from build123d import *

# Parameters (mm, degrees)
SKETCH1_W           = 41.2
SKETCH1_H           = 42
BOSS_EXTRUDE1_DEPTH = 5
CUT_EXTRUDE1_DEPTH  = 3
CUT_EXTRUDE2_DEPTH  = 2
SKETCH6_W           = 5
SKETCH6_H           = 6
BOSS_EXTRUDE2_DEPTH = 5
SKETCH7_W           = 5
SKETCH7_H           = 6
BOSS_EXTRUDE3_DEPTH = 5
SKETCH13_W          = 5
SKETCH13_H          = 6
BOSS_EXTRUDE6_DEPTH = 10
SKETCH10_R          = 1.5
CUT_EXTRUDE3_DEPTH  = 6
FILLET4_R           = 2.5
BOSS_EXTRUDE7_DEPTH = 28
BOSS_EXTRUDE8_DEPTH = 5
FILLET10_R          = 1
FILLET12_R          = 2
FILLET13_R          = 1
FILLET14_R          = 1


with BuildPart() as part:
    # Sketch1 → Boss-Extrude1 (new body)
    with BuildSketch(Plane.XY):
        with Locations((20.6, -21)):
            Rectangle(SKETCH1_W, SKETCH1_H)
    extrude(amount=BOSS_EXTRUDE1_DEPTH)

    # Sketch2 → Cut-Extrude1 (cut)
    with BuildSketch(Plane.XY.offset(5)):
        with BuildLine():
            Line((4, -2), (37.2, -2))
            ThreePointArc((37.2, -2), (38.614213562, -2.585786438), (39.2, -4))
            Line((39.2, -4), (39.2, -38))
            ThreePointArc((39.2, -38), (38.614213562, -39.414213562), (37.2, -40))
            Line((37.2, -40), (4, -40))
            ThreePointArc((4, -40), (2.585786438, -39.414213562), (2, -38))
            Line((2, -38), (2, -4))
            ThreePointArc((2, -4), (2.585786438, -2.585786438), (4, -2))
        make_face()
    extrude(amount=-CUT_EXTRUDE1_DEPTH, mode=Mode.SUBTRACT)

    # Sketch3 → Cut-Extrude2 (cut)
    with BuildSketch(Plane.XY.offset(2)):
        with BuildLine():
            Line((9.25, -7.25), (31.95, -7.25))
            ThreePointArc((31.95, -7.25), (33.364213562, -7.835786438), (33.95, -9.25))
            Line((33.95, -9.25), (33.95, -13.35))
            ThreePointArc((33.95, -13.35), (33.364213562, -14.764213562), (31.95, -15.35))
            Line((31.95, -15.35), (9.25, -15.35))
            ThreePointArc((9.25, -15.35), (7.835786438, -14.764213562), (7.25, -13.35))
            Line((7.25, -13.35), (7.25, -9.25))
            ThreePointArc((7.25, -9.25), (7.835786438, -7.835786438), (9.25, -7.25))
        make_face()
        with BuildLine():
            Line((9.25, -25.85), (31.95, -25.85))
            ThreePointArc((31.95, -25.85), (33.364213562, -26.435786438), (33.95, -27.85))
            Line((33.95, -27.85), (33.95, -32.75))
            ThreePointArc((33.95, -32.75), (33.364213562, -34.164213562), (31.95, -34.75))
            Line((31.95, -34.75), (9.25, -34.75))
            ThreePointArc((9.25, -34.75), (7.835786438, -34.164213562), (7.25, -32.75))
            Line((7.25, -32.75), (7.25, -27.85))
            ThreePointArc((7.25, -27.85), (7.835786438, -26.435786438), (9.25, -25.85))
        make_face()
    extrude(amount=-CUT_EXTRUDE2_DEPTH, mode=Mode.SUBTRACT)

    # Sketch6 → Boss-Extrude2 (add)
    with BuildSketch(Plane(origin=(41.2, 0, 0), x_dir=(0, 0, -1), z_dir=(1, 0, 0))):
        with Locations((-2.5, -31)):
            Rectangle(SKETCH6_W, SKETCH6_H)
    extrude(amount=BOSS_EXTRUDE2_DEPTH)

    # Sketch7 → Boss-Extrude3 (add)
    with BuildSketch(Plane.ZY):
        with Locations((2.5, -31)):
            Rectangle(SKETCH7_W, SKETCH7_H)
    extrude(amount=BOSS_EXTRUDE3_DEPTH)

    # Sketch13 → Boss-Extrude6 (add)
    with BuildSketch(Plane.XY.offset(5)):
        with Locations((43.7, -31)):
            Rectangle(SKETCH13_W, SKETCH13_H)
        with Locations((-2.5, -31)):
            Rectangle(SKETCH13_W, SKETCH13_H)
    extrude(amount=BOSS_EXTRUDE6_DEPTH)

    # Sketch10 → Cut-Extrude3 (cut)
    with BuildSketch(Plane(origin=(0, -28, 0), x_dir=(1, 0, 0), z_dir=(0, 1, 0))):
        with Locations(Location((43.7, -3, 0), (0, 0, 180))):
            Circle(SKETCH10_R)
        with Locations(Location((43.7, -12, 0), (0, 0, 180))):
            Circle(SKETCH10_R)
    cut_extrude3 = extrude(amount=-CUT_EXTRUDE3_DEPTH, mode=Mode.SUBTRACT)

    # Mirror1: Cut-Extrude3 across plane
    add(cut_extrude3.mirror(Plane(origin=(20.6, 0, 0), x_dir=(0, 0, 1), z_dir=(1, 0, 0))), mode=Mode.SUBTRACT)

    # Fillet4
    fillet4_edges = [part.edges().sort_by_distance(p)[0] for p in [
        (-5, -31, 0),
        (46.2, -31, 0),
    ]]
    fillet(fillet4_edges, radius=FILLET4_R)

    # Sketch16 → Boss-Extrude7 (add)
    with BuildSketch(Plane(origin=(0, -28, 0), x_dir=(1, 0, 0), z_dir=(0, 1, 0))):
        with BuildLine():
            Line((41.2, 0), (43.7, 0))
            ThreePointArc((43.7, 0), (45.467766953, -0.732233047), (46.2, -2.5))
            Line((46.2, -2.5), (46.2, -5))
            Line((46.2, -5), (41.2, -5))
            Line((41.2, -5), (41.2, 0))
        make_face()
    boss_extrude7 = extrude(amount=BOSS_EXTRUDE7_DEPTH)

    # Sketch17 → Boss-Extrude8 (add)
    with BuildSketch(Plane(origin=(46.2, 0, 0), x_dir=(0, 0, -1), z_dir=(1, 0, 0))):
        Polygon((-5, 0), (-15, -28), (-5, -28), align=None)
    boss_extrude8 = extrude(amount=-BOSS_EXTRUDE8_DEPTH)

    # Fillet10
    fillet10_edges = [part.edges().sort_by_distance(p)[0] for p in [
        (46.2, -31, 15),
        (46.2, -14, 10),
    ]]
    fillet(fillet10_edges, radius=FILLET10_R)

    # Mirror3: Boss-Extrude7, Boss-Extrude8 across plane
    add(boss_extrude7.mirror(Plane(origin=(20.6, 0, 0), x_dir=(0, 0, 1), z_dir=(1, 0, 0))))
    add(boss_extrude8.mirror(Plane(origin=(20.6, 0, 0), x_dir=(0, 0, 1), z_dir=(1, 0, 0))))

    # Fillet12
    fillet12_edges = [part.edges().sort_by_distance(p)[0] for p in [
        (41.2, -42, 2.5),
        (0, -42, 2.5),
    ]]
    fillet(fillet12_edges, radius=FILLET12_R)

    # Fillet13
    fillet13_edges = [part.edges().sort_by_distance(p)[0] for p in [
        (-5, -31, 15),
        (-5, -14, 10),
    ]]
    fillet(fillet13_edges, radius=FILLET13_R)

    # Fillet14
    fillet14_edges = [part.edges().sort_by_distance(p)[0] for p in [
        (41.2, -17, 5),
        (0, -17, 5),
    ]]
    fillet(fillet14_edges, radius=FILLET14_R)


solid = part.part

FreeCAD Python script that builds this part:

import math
import FreeCAD as App
import Part
import Sketcher


def edges_at(feature, points):
    """Names of the edges that pass closest to the given points."""
    edges = feature.Shape.Edges
    near = lambda p: min(range(len(edges)), key=lambda i: edges[i].distToShape(Part.Vertex(*p))[0])
    return sorted({f"Edge{near(p) + 1}" for p in points})


def add_polygon(sketch, points):
    """Adds a closed chain of lines whose ends are joined by coincident constraints."""
    first, n = sketch.GeometryCount, len(points)
    for a, b in zip(points, points[1:] + points[:1]):
        sketch.addGeometry(Part.LineSegment(App.Vector(*a, 0), App.Vector(*b, 0)), False)
    for i in range(n):
        sketch.addConstraint(Sketcher.Constraint("Coincident", first + i, 2, first + (i + 1) % n, 1))

doc = App.newDocument("Part")
params = doc.addObject("Spreadsheet::Sheet", "Params")
for row, (alias, value) in enumerate([
    ("sketch1_height", "42 mm"),
    ("sketch1_width", "41.2 mm"),
    ("pad1_length", "5 mm"),
    ("sketch2_radius", "2 mm"),
    ("sketch2_height", "34 mm"),
    ("sketch2_width", "33.2 mm"),
    ("pocket1_length", "3 mm"),
    ("sketch3_radius", "2 mm"),
    ("sketch3_width", "22.7 mm"),
    ("sketch3_height", "4.1 mm"),
    ("sketch3_height2", "4.9 mm"),
    ("pocket2_length", "2 mm"),
    ("sketch4_width", "6 mm"),
    ("sketch4_height", "5 mm"),
    ("pad2_length", "5 mm"),
    ("sketch5_width", "6 mm"),
    ("sketch5_height", "5 mm"),
    ("pad3_length", "5 mm"),
    ("sketch6_width", "5 mm"),
    ("sketch6_height", "6 mm"),
    ("pad4_length", "10 mm"),
    ("sketch7_diameter", "3 mm"),
    ("pocket3_length", "6 mm"),
    ("fillet_radius", "2.5 mm"),
    ("sketch8_radius", "2.5 mm"),
    ("sketch8_width", "5 mm"),
    ("pad5_length", "28 mm"),
    ("sketch9_width", "28 mm"),
    ("sketch9_height", "10 mm"),
    ("pad6_length", "5 mm"),
    ("fillet2_radius", "1 mm"),
    ("fillet3_radius", "2 mm"),
    ("fillet4_radius", "1 mm"),
    ("fillet5_radius", "1 mm"),
], start=1):
    params.set(f"A{row}", alias)
    params.set(f"B{row}", "=" + value)
    params.setAlias(f"B{row}", alias)

body = doc.addObject("PartDesign::Body", "Body")

# Sketch on XY plane
sketch1 = body.newObject("Sketcher::SketchObject", "Sketch")
sketch1.AttachmentSupport = (doc.getObject("XY_Plane"), [""])
sketch1.MapMode = "FlatFace"
add_polygon(sketch1, [(0, 0), (0, -42), (41, -42), (41, 0)])  # lines 0-3
sketch1.addConstraint(Sketcher.Constraint("Vertical", 0))
sketch1.addConstraint(Sketcher.Constraint("Horizontal", 1))
sketch1.addConstraint(Sketcher.Constraint("Vertical", 2))
sketch1.addConstraint(Sketcher.Constraint("Horizontal", 3))
sketch1.addConstraint(Sketcher.Constraint("Coincident", 3, 2, -1, 1))
sketch1.addConstraint(Sketcher.Constraint("DistanceY", 0, 2, 0, 1, 42.0))
sketch1.addConstraint(Sketcher.Constraint("DistanceX", 1, 1, 1, 2, 41.2))
sketch1.setExpression("Constraints[9]", "Params.sketch1_height")
sketch1.setExpression("Constraints[10]", "Params.sketch1_width")
pad1 = body.newObject("PartDesign::Pad", "Pad")
pad1.Profile = sketch1
pad1.setExpression("Length", "Params.pad1_length")

# Sketch on XY plane
sketch2 = body.newObject("Sketcher::SketchObject", "Sketch001")
sketch2.AttachmentSupport = (doc.getObject("XY_Plane"), [""])
sketch2.MapMode = "FlatFace"
sketch2.AttachmentOffset = App.Placement(App.Vector(0, 0, 5), App.Rotation())
sketch2.addGeometry(Part.LineSegment(App.Vector(37.2, -2, 0), App.Vector(4, -2, 0)), False)
sketch2.addGeometry(Part.ArcOfCircle(Part.Circle(App.Vector(4, -4, 0), App.Vector(0, 0, 1), 2), math.radians(90), math.radians(180)), False)
sketch2.addGeometry(Part.LineSegment(App.Vector(2, -4, 0), App.Vector(2, -38, 0)), False)
sketch2.addGeometry(Part.ArcOfCircle(Part.Circle(App.Vector(4, -38, 0), App.Vector(0, 0, 1), 2), math.radians(-180), math.radians(-90)), False)
sketch2.addGeometry(Part.LineSegment(App.Vector(4, -40, 0), App.Vector(37.2, -40, 0)), False)
sketch2.addGeometry(Part.ArcOfCircle(Part.Circle(App.Vector(37.2, -38, 0), App.Vector(0, 0, 1), 2), math.radians(-90), math.radians(0)), False)
sketch2.addGeometry(Part.LineSegment(App.Vector(39.2, -38, 0), App.Vector(39.2, -4, 0)), False)
sketch2.addGeometry(Part.ArcOfCircle(Part.Circle(App.Vector(37.2, -4, 0), App.Vector(0, 0, 1), 2), math.radians(0), math.radians(90)), False)
sketch2.addConstraint(Sketcher.Constraint("Tangent", 0, 2, 1, 1))
sketch2.addConstraint(Sketcher.Constraint("Tangent", 1, 2, 2, 1))
sketch2.addConstraint(Sketcher.Constraint("Tangent", 2, 2, 3, 1))
sketch2.addConstraint(Sketcher.Constraint("Tangent", 3, 2, 4, 1))
sketch2.addConstraint(Sketcher.Constraint("Tangent", 4, 2, 5, 1))
sketch2.addConstraint(Sketcher.Constraint("Tangent", 5, 2, 6, 1))
sketch2.addConstraint(Sketcher.Constraint("Tangent", 6, 2, 7, 1))
sketch2.addConstraint(Sketcher.Constraint("Tangent", 7, 2, 0, 1))
sketch2.addConstraint(Sketcher.Constraint("Horizontal", 0))
sketch2.addConstraint(Sketcher.Constraint("Vertical", 2))
sketch2.addConstraint(Sketcher.Constraint("Horizontal", 4))
sketch2.addConstraint(Sketcher.Constraint("Vertical", 6))
sketch2.addConstraint(Sketcher.Constraint("Equal", 1, 3))
sketch2.addConstraint(Sketcher.Constraint("Equal", 3, 5))
sketch2.addConstraint(Sketcher.Constraint("Equal", 5, 7))
sketch2.addConstraint(Sketcher.Constraint("Radius", 1, 2.0))
sketch2.addConstraint(Sketcher.Constraint("DistanceY", 2, 2, 2, 1, 34.0))
sketch2.addConstraint(Sketcher.Constraint("DistanceX", 0, 2, 0, 1, 33.2))
sketch2.addConstraint(Sketcher.Constraint("DistanceX", -1, 1, 1, 3, 4.0))
sketch2.addConstraint(Sketcher.Constraint("DistanceY", 1, 3, -1, 1, 4.0))
sketch2.setExpression("Constraints[15]", "Params.sketch2_radius")
sketch2.setExpression("Constraints[16]", "Params.sketch2_height")
sketch2.setExpression("Constraints[17]", "Params.sketch2_width")
pocket1 = body.newObject("PartDesign::Pocket", "Pocket")
pocket1.Profile = sketch2
pocket1.setExpression("Length", "Params.pocket1_length")

# Sketch on XY plane
sketch3 = body.newObject("Sketcher::SketchObject", "Sketch002")
sketch3.AttachmentSupport = (doc.getObject("XY_Plane"), [""])
sketch3.MapMode = "FlatFace"
sketch3.AttachmentOffset = App.Placement(App.Vector(0, 0, 2), App.Rotation())
sketch3.addGeometry(Part.LineSegment(App.Vector(31.9, -7.2, 0), App.Vector(9.2, -7.2, 0)), False)
sketch3.addGeometry(Part.ArcOfCircle(Part.Circle(App.Vector(9.3, -9.3, 0), App.Vector(0, 0, 1), 2), math.radians(90), math.radians(180)), False)
sketch3.addGeometry(Part.LineSegment(App.Vector(7.2, -9.2, 0), App.Vector(7.2, -13.3, 0)), False)
sketch3.addGeometry(Part.ArcOfCircle(Part.Circle(App.Vector(9.3, -13.3, 0), App.Vector(0, 0, 1), 2), math.radians(-180), math.radians(-90)), False)
sketch3.addGeometry(Part.LineSegment(App.Vector(9.2, -15.3, 0), App.Vector(31.9, -15.3, 0)), False)
sketch3.addGeometry(Part.ArcOfCircle(Part.Circle(App.Vector(31.9, -13.3, 0), App.Vector(0, 0, 1), 2), math.radians(-90), math.radians(0)), False)
sketch3.addGeometry(Part.LineSegment(App.Vector(34, -13.3, 0), App.Vector(34, -9.2, 0)), False)
sketch3.addGeometry(Part.ArcOfCircle(Part.Circle(App.Vector(31.9, -9.3, 0), App.Vector(0, 0, 1), 2), math.radians(0), math.radians(90)), False)
sketch3.addGeometry(Part.LineSegment(App.Vector(31.9, -25.9, 0), App.Vector(9.2, -25.9, 0)), False)
sketch3.addGeometry(Part.ArcOfCircle(Part.Circle(App.Vector(9.3, -27.9, 0), App.Vector(0, 0, 1), 2), math.radians(90), math.radians(180)), False)
sketch3.addGeometry(Part.LineSegment(App.Vector(7.2, -27.9, 0), App.Vector(7.2, -32.8, 0)), False)
sketch3.addGeometry(Part.ArcOfCircle(Part.Circle(App.Vector(9.3, -32.7, 0), App.Vector(0, 0, 1), 2), math.radians(-180), math.radians(-90)), False)
sketch3.addGeometry(Part.LineSegment(App.Vector(9.2, -34.8, 0), App.Vector(31.9, -34.8, 0)), False)
sketch3.addGeometry(Part.ArcOfCircle(Part.Circle(App.Vector(31.9, -32.7, 0), App.Vector(0, 0, 1), 2), math.radians(-90), math.radians(0)), False)
sketch3.addGeometry(Part.LineSegment(App.Vector(34, -32.8, 0), App.Vector(34, -27.9, 0)), False)
sketch3.addGeometry(Part.ArcOfCircle(Part.Circle(App.Vector(31.9, -27.9, 0), App.Vector(0, 0, 1), 2), math.radians(0), math.radians(90)), False)
sketch3.addConstraint(Sketcher.Constraint("Tangent", 0, 2, 1, 1))
sketch3.addConstraint(Sketcher.Constraint("Tangent", 1, 2, 2, 1))
sketch3.addConstraint(Sketcher.Constraint("Tangent", 2, 2, 3, 1))
sketch3.addConstraint(Sketcher.Constraint("Tangent", 3, 2, 4, 1))
sketch3.addConstraint(Sketcher.Constraint("Tangent", 4, 2, 5, 1))
sketch3.addConstraint(Sketcher.Constraint("Tangent", 5, 2, 6, 1))
sketch3.addConstraint(Sketcher.Constraint("Tangent", 6, 2, 7, 1))
sketch3.addConstraint(Sketcher.Constraint("Tangent", 7, 2, 0, 1))
sketch3.addConstraint(Sketcher.Constraint("Tangent", 8, 2, 9, 1))
sketch3.addConstraint(Sketcher.Constraint("Tangent", 9, 2, 10, 1))
sketch3.addConstraint(Sketcher.Constraint("Tangent", 10, 2, 11, 1))
sketch3.addConstraint(Sketcher.Constraint("Tangent", 11, 2, 12, 1))
sketch3.addConstraint(Sketcher.Constraint("Tangent", 12, 2, 13, 1))
sketch3.addConstraint(Sketcher.Constraint("Tangent", 13, 2, 14, 1))
sketch3.addConstraint(Sketcher.Constraint("Tangent", 14, 2, 15, 1))
sketch3.addConstraint(Sketcher.Constraint("Tangent", 15, 2, 8, 1))
sketch3.addConstraint(Sketcher.Constraint("Horizontal", 0))
sketch3.addConstraint(Sketcher.Constraint("Vertical", 2))
sketch3.addConstraint(Sketcher.Constraint("Horizontal", 4))
sketch3.addConstraint(Sketcher.Constraint("Vertical", 6))
sketch3.addConstraint(Sketcher.Constraint("Horizontal", 8))
sketch3.addConstraint(Sketcher.Constraint("Vertical", 10))
sketch3.addConstraint(Sketcher.Constraint("Horizontal", 12))
sketch3.addConstraint(Sketcher.Constraint("Vertical", 14))
sketch3.addConstraint(Sketcher.Constraint("Equal", 1, 3))
sketch3.addConstraint(Sketcher.Constraint("Equal", 3, 5))
sketch3.addConstraint(Sketcher.Constraint("Equal", 5, 7))
sketch3.addConstraint(Sketcher.Constraint("Equal", 7, 9))
sketch3.addConstraint(Sketcher.Constraint("Equal", 9, 11))
sketch3.addConstraint(Sketcher.Constraint("Equal", 11, 13))
sketch3.addConstraint(Sketcher.Constraint("Equal", 13, 15))
sketch3.addConstraint(Sketcher.Constraint("Vertical", 3, 3, 9, 3))
sketch3.addConstraint(Sketcher.Constraint("Vertical", 7, 3, 13, 3))
sketch3.addConstraint(Sketcher.Constraint("Radius", 1, 2.0))
sketch3.addConstraint(Sketcher.Constraint("DistanceX", 0, 2, 0, 1, 22.7))
sketch3.addConstraint(Sketcher.Constraint("DistanceY", 2, 2, 2, 1, 4.1))
sketch3.addConstraint(Sketcher.Constraint("DistanceY", 10, 2, 10, 1, 4.9))
sketch3.addConstraint(Sketcher.Constraint("DistanceY", 9, 3, 3, 3, 14.5))
sketch3.addConstraint(Sketcher.Constraint("DistanceX", -1, 1, 1, 3, 9.25))
sketch3.addConstraint(Sketcher.Constraint("DistanceY", 1, 3, -1, 1, 9.25))
sketch3.setExpression("Constraints[33]", "Params.sketch3_radius")
sketch3.setExpression("Constraints[34]", "Params.sketch3_width")
sketch3.setExpression("Constraints[35]", "Params.sketch3_height")
sketch3.setExpression("Constraints[36]", "Params.sketch3_height2")
pocket2 = body.newObject("PartDesign::Pocket", "Pocket001")
pocket2.Profile = sketch3
pocket2.setExpression("Length", "Params.pocket2_length")

# Sketch on YZ plane
sketch4 = body.newObject("Sketcher::SketchObject", "Sketch003")
sketch4.AttachmentSupport = (doc.getObject("YZ_Plane"), [""])
sketch4.MapMode = "FlatFace"
sketch4.AttachmentOffset = App.Placement(App.Vector(0, 0, 41.2), App.Rotation())
add_polygon(sketch4, [(-28, 5), (-34, 5), (-34, 0), (-28, 0)])  # lines 0-3
sketch4.addConstraint(Sketcher.Constraint("Horizontal", 0))
sketch4.addConstraint(Sketcher.Constraint("Vertical", 1))
sketch4.addConstraint(Sketcher.Constraint("Horizontal", 2))
sketch4.addConstraint(Sketcher.Constraint("Vertical", 3))
sketch4.addConstraint(Sketcher.Constraint("PointOnObject", 1, 2, -1))
sketch4.addConstraint(Sketcher.Constraint("DistanceX", 0, 2, 0, 1, 6.0))
sketch4.addConstraint(Sketcher.Constraint("DistanceY", 1, 2, 1, 1, 5.0))
sketch4.addConstraint(Sketcher.Constraint("DistanceX", 0, 2, -1, 1, 34.0))
sketch4.setExpression("Constraints[9]", "Params.sketch4_width")
sketch4.setExpression("Constraints[10]", "Params.sketch4_height")
pad2 = body.newObject("PartDesign::Pad", "Pad001")
pad2.Profile = sketch4
pad2.setExpression("Length", "Params.pad2_length")

# Sketch on YZ plane
sketch5 = body.newObject("Sketcher::SketchObject", "Sketch004")
sketch5.AttachmentSupport = (doc.getObject("YZ_Plane"), [""])
sketch5.MapMode = "FlatFace"
add_polygon(sketch5, [(-28, 0), (-34, 0), (-34, 5), (-28, 5)])  # lines 0-3
sketch5.addConstraint(Sketcher.Constraint("Horizontal", 0))
sketch5.addConstraint(Sketcher.Constraint("Vertical", 1))
sketch5.addConstraint(Sketcher.Constraint("Horizontal", 2))
sketch5.addConstraint(Sketcher.Constraint("Vertical", 3))
sketch5.addConstraint(Sketcher.Constraint("PointOnObject", 0, 2, -1))
sketch5.addConstraint(Sketcher.Constraint("DistanceX", 0, 2, 0, 1, 6.0))
sketch5.addConstraint(Sketcher.Constraint("DistanceY", 1, 1, 1, 2, 5.0))
sketch5.addConstraint(Sketcher.Constraint("DistanceX", 0, 2, -1, 1, 34.0))
sketch5.setExpression("Constraints[9]", "Params.sketch5_width")
sketch5.setExpression("Constraints[10]", "Params.sketch5_height")
pad3 = body.newObject("PartDesign::Pad", "Pad002")
pad3.Profile = sketch5
pad3.setExpression("Length", "Params.pad3_length")
pad3.Reversed = True

# Sketch on XY plane
sketch6 = body.newObject("Sketcher::SketchObject", "Sketch005")
sketch6.AttachmentSupport = (doc.getObject("XY_Plane"), [""])
sketch6.MapMode = "FlatFace"
sketch6.AttachmentOffset = App.Placement(App.Vector(0, 0, 5), App.Rotation())
add_polygon(sketch6, [(41, -28), (41, -34), (46, -34), (46, -28)])  # lines 0-3
add_polygon(sketch6, [(-5, -28), (-5, -34), (0, -34), (0, -28)])  # lines 4-7
sketch6.addConstraint(Sketcher.Constraint("Vertical", 0))
sketch6.addConstraint(Sketcher.Constraint("Horizontal", 1))
sketch6.addConstraint(Sketcher.Constraint("Vertical", 2))
sketch6.addConstraint(Sketcher.Constraint("Horizontal", 3))
sketch6.addConstraint(Sketcher.Constraint("Vertical", 4))
sketch6.addConstraint(Sketcher.Constraint("Horizontal", 5))
sketch6.addConstraint(Sketcher.Constraint("Vertical", 6))
sketch6.addConstraint(Sketcher.Constraint("Horizontal", 7))
sketch6.addConstraint(Sketcher.Constraint("PointOnObject", 5, 2, -2))
sketch6.addConstraint(Sketcher.Constraint("Horizontal", 1, 2, 4, 2))
sketch6.addConstraint(Sketcher.Constraint("Horizontal", 3, 2, 6, 2))
sketch6.addConstraint(Sketcher.Constraint("Equal", 3, 5))
sketch6.addConstraint(Sketcher.Constraint("DistanceX", 1, 1, 1, 2, 5.0))
sketch6.addConstraint(Sketcher.Constraint("DistanceY", 0, 2, 0, 1, 6.0))
sketch6.addConstraint(Sketcher.Constraint("DistanceY", 0, 2, -1, 1, 34.0))
sketch6.addConstraint(Sketcher.Constraint("DistanceX", -1, 1, 0, 2, 41.2))
sketch6.setExpression("Constraints[20]", "Params.sketch6_width")
sketch6.setExpression("Constraints[21]", "Params.sketch6_height")
pad4 = body.newObject("PartDesign::Pad", "Pad003")
pad4.Profile = sketch6
pad4.setExpression("Length", "Params.pad4_length")

# Sketch on XZ plane
sketch7 = body.newObject("Sketcher::SketchObject", "Sketch006")
sketch7.AttachmentSupport = (doc.getObject("XZ_Plane"), [""])
sketch7.MapMode = "FlatFace"
sketch7.AttachmentOffset = App.Placement(App.Vector(0, 0, 28), App.Rotation())
sketch7.addGeometry(Part.Circle(App.Vector(43.7, 3, 0), App.Vector(0, 0, 1), 1.5), False)
sketch7.addGeometry(Part.Circle(App.Vector(43.7, 12, 0), App.Vector(0, 0, 1), 1.5), False)
sketch7.addConstraint(Sketcher.Constraint("Equal", 0, 1))
sketch7.addConstraint(Sketcher.Constraint("Vertical", 0, 3, 1, 3))
sketch7.addConstraint(Sketcher.Constraint("Diameter", 0, 3.0))
sketch7.addConstraint(Sketcher.Constraint("DistanceY", -1, 1, 0, 3, 3.0))
sketch7.addConstraint(Sketcher.Constraint("DistanceY", -1, 1, 1, 3, 12.0))
sketch7.addConstraint(Sketcher.Constraint("DistanceX", -1, 1, 0, 3, 43.7))
sketch7.setExpression("Constraints[2]", "Params.sketch7_diameter")
pocket3 = body.newObject("PartDesign::Pocket", "Pocket002")
pocket3.Profile = sketch7
pocket3.setExpression("Length", "Params.pocket3_length")
pocket3.Reversed = True
doc.recompute()

datumplane = body.newObject("PartDesign::Plane", "DatumPlane")
datumplane.AttachmentSupport = (doc.getObject("YZ_Plane"), [""])
datumplane.MapMode = "FlatFace"
datumplane.AttachmentOffset = App.Placement(App.Vector(0, 0, 20.6), App.Rotation())
mirrored = body.newObject("PartDesign::Mirrored", "Mirrored")
mirrored.Originals = [pocket3]
mirrored.MirrorPlane = (datumplane, [""])
body.Tip = mirrored
doc.recompute()

fillet = body.newObject("PartDesign::Fillet", "Fillet")
fillet.Base = (mirrored, edges_at(mirrored, [(-5, -31, 0), (46.2, -31, 0)]))
fillet.setExpression("Radius", "Params.fillet_radius")

# Sketch on XZ plane
sketch8 = body.newObject("Sketcher::SketchObject", "Sketch007")
sketch8.AttachmentSupport = (doc.getObject("XZ_Plane"), [""])
sketch8.MapMode = "FlatFace"
sketch8.AttachmentOffset = App.Placement(App.Vector(0, 0, 28), App.Rotation())
sketch8.addGeometry(Part.LineSegment(App.Vector(43.7, 0, 0), App.Vector(41.2, 0, 0)), False)
sketch8.addGeometry(Part.LineSegment(App.Vector(41.2, 0, 0), App.Vector(41.2, 5, 0)), False)
sketch8.addGeometry(Part.LineSegment(App.Vector(41.2, 5, 0), App.Vector(46.2, 5, 0)), False)
sketch8.addGeometry(Part.LineSegment(App.Vector(46.2, 5, 0), App.Vector(46.2, 2.5, 0)), False)
sketch8.addGeometry(Part.ArcOfCircle(Part.Circle(App.Vector(43.7, 2.5, 0), App.Vector(0, 0, 1), 2.5), math.radians(-90), math.radians(0)), False)
sketch8.addConstraint(Sketcher.Constraint("Coincident", 0, 2, 1, 1))
sketch8.addConstraint(Sketcher.Constraint("Coincident", 1, 2, 2, 1))
sketch8.addConstraint(Sketcher.Constraint("Coincident", 2, 2, 3, 1))
sketch8.addConstraint(Sketcher.Constraint("Tangent", 3, 2, 4, 2))
sketch8.addConstraint(Sketcher.Constraint("Tangent", 4, 1, 0, 1))
sketch8.addConstraint(Sketcher.Constraint("Horizontal", 0))
sketch8.addConstraint(Sketcher.Constraint("Vertical", 1))
sketch8.addConstraint(Sketcher.Constraint("Horizontal", 2))
sketch8.addConstraint(Sketcher.Constraint("Vertical", 3))
sketch8.addConstraint(Sketcher.Constraint("PointOnObject", 0, 2, -1))
sketch8.addConstraint(Sketcher.Constraint("Equal", 2, 1))
sketch8.addConstraint(Sketcher.Constraint("Radius", 4, 2.5))
sketch8.addConstraint(Sketcher.Constraint("DistanceX", 2, 1, 2, 2, 5.0))
sketch8.addConstraint(Sketcher.Constraint("DistanceX", -1, 1, 4, 3, 43.7))
sketch8.setExpression("Constraints[11]", "Params.sketch8_radius")
sketch8.setExpression("Constraints[12]", "Params.sketch8_width")
pad5 = body.newObject("PartDesign::Pad", "Pad004")
pad5.Profile = sketch8
pad5.setExpression("Length", "Params.pad5_length")
pad5.Reversed = True

# Sketch on YZ plane
sketch9 = body.newObject("Sketcher::SketchObject", "Sketch008")
sketch9.AttachmentSupport = (doc.getObject("YZ_Plane"), [""])
sketch9.MapMode = "FlatFace"
sketch9.AttachmentOffset = App.Placement(App.Vector(0, 0, 46.2), App.Rotation())
add_polygon(sketch9, [(0, 5), (-28, 15), (-28, 5)])  # lines 0-2
sketch9.addConstraint(Sketcher.Constraint("Vertical", 1))
sketch9.addConstraint(Sketcher.Constraint("Horizontal", 2))
sketch9.addConstraint(Sketcher.Constraint("PointOnObject", 2, 2, -2))
sketch9.addConstraint(Sketcher.Constraint("DistanceX", 2, 1, 2, 2, 28.0))
sketch9.addConstraint(Sketcher.Constraint("DistanceY", 1, 2, 1, 1, 10.0))
sketch9.addConstraint(Sketcher.Constraint("DistanceY", -1, 1, 0, 2, 15.0))
sketch9.setExpression("Constraints[6]", "Params.sketch9_width")
sketch9.setExpression("Constraints[7]", "Params.sketch9_height")
pad6 = body.newObject("PartDesign::Pad", "Pad005")
pad6.Profile = sketch9
pad6.setExpression("Length", "Params.pad6_length")
pad6.Reversed = True
doc.recompute()

fillet2 = body.newObject("PartDesign::Fillet", "Fillet001")
fillet2.Base = (pad6, edges_at(pad6, [(46.2, -31, 15), (46.2, -14, 10)]))
fillet2.setExpression("Radius", "Params.fillet2_radius")
doc.recompute()

datumplane2 = body.newObject("PartDesign::Plane", "DatumPlane001")
datumplane2.AttachmentSupport = (doc.getObject("YZ_Plane"), [""])
datumplane2.MapMode = "FlatFace"
datumplane2.AttachmentOffset = App.Placement(App.Vector(0, 0, 20.6), App.Rotation())
mirrored2 = body.newObject("PartDesign::Mirrored", "Mirrored001")
mirrored2.Originals = [pad5, pad6]
mirrored2.MirrorPlane = (datumplane2, [""])
body.Tip = mirrored2
doc.recompute()

fillet3 = body.newObject("PartDesign::Fillet", "Fillet002")
fillet3.Base = (mirrored2, edges_at(mirrored2, [(41.2, -42, 2.5), (0, -42, 2.5)]))
fillet3.setExpression("Radius", "Params.fillet3_radius")
doc.recompute()

fillet4 = body.newObject("PartDesign::Fillet", "Fillet003")
fillet4.Base = (fillet3, edges_at(fillet3, [(-5, -31, 15), (-5, -14, 10)]))
fillet4.setExpression("Radius", "Params.fillet4_radius")
doc.recompute()

fillet5 = body.newObject("PartDesign::Fillet", "Fillet004")
fillet5.Base = (fillet4, edges_at(fillet4, [(41.2, -17, 5), (0, -17, 5)]))
fillet5.setExpression("Radius", "Params.fillet5_radius")

doc.recompute()
